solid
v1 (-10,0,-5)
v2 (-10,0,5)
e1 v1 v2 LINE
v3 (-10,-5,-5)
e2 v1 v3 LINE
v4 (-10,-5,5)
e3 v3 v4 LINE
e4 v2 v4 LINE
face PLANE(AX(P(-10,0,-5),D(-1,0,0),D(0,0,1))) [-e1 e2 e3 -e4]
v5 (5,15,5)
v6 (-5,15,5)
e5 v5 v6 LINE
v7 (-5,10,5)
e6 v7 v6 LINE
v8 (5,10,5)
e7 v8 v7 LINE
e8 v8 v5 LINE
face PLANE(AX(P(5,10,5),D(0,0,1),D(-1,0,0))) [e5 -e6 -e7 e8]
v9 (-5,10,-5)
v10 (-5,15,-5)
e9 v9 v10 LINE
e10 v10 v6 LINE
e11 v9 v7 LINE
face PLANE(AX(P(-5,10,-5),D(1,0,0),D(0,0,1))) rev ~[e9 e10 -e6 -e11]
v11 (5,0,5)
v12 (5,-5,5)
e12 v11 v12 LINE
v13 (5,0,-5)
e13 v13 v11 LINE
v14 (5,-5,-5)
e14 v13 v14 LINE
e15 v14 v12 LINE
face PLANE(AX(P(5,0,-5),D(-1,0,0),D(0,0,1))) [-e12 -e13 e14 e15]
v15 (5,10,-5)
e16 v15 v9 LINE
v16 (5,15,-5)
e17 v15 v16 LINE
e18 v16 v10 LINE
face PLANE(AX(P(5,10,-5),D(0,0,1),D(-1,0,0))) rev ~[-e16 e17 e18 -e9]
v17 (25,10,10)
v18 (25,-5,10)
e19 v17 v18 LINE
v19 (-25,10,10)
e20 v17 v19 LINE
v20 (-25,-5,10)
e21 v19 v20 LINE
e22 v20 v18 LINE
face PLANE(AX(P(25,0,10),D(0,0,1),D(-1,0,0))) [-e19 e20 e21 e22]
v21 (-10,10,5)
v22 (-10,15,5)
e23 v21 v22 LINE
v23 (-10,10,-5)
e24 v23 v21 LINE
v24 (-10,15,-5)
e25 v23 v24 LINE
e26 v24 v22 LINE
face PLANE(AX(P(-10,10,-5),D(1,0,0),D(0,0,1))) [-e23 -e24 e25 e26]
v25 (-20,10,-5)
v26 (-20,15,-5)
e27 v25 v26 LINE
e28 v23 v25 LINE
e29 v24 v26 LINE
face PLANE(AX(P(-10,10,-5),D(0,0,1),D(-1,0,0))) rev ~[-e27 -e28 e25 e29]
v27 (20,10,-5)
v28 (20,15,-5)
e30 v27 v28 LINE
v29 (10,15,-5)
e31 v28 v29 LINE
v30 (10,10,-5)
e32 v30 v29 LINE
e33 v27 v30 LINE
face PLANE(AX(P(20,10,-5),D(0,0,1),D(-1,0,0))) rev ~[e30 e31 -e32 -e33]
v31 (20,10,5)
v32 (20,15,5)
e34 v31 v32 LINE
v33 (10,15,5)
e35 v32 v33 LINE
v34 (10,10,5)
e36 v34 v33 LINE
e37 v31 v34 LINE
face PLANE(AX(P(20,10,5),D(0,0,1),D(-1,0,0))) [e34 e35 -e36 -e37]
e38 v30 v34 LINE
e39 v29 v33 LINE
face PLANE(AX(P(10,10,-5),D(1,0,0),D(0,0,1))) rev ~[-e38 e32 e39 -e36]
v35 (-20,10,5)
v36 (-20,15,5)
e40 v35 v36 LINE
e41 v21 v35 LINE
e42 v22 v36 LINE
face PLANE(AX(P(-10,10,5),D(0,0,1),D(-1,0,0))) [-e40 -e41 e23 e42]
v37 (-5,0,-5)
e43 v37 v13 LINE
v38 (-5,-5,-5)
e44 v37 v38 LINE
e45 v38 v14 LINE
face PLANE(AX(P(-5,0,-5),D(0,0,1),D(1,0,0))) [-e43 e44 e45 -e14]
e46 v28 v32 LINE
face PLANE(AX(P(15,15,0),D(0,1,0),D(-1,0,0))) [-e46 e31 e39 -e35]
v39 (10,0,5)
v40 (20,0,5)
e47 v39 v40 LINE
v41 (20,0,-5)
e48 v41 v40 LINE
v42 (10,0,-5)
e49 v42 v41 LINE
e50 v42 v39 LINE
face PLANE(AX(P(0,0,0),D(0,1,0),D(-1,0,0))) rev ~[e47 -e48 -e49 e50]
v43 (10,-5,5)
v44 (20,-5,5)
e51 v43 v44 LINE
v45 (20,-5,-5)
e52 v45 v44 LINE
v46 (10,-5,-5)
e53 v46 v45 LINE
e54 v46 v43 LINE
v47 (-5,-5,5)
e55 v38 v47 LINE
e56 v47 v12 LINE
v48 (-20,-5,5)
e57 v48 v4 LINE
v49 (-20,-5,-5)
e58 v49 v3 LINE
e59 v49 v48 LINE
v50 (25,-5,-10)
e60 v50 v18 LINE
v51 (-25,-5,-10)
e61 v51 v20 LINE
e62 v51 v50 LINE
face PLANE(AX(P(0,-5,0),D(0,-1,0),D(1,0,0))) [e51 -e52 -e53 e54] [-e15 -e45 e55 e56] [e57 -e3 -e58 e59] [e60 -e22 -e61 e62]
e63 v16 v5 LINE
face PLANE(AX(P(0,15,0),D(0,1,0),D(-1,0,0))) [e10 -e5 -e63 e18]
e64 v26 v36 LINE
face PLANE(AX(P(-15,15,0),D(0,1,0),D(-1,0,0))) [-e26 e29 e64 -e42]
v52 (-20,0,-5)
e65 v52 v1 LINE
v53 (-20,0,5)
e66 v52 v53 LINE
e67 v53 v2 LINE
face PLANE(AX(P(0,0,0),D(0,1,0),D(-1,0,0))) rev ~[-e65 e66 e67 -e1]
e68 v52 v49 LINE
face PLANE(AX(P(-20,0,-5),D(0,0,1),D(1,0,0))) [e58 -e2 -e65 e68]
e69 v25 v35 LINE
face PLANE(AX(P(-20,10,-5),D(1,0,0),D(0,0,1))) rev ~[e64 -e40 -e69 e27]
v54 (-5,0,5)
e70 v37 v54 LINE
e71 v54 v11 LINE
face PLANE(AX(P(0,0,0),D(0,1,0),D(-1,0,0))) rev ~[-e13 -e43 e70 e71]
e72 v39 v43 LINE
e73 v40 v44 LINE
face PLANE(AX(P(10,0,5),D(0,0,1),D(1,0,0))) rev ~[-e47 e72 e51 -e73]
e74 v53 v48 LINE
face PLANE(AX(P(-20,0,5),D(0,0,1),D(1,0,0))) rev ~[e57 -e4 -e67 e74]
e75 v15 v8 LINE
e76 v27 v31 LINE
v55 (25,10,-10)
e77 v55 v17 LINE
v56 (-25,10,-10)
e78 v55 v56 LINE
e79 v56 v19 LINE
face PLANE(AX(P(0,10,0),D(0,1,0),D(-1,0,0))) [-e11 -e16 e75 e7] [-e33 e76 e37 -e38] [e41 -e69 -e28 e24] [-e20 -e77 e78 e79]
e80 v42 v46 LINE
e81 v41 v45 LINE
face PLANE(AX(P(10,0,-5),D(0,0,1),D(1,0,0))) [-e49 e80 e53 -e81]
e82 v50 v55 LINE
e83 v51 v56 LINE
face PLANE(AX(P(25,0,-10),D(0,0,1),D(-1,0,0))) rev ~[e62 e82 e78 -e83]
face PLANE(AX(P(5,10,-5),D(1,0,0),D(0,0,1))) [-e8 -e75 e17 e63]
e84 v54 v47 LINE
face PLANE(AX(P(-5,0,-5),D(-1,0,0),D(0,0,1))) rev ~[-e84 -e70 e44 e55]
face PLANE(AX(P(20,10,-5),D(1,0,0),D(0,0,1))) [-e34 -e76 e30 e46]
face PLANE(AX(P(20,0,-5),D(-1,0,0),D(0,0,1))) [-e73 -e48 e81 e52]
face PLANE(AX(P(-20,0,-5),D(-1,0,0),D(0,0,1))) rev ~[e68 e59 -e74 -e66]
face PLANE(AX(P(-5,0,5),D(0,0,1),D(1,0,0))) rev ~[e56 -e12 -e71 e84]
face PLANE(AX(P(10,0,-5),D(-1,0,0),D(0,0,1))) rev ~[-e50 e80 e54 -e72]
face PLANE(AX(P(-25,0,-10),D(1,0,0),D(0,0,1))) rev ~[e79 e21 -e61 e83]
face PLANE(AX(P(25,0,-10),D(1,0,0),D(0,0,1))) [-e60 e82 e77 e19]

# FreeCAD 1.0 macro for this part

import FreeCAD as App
import Part
import Sketcher

V = App.Vector
Q = App.Units.Quantity


def add_polygon(sketch, points):
    """Adds a closed chain of lines whose ends are joined by coincident constraints."""
    first, n = sketch.GeometryCount, len(points)
    for a, b in zip(points, points[1:] + points[:1]):
        sketch.addGeometry(Part.LineSegment(App.Vector(*a, 0), App.Vector(*b, 0)), False)
    for i in range(n):
        sketch.addConstraint(Sketcher.Constraint("Coincident", first + i, 2, first + (i + 1) % n, 1))

doc = App.newDocument("Part")
body = doc.addObject("PartDesign::Body", "Body")

sketch1 = body.newObject("Sketcher::SketchObject", "Sketch")
sketch1.AttachmentSupport = (doc.getObject("XZ_Plane"), [""])
sketch1.MapMode = "FlatFace"
add_polygon(sketch1, [(-25, 10), (-25, -10), (25, -10), (25, 10)])
add_polygon(sketch1, [(-10, -5), (-20, -5), (-20, 5), (-10, 5)])
add_polygon(sketch1, [(5, -5), (-5, -5), (-5, 5), (5, 5)])
add_polygon(sketch1, [(20, -5), (10, -5), (10, 5), (20, 5)])
sketch1.addConstraint([
    Sketcher.Constraint("Vertical", 0),
    Sketcher.Constraint("Horizontal", 1),
    Sketcher.Constraint("Vertical", 2),
    Sketcher.Constraint("Horizontal", 3),
    Sketcher.Constraint("Horizontal", 4),
    Sketcher.Constraint("Vertical", 5),
    Sketcher.Constraint("Horizontal", 6),
    Sketcher.Constraint("Vertical", 7),
    Sketcher.Constraint("Horizontal", 8),
    Sketcher.Constraint("Vertical", 9),
    Sketcher.Constraint("Horizontal", 10),
    Sketcher.Constraint("Vertical", 11),
    Sketcher.Constraint("Horizontal", 12),
    Sketcher.Constraint("Vertical", 13),
    Sketcher.Constraint("Horizontal", 14),
    Sketcher.Constraint("Vertical", 15),
    Sketcher.Constraint("Symmetric", 0, 2, 2, 2, -1, 1),
    Sketcher.Constraint("Symmetric", 8, 2, 10, 2, -1, 1),
    Sketcher.Constraint("Symmetric", 6, 2, 12, 2, -1, 1),
    Sketcher.Constraint("Symmetric", 4, 2, 14, 2, -1, 1),
    Sketcher.Constraint("Horizontal", 7, 2, 8, 2),
    Sketcher.Constraint("Horizontal", 6, 2, 9, 2),
    Sketcher.Constraint("Equal", 6, 8),
    Sketcher.Constraint("Equal", 14, 5),
    Sketcher.Constraint("DistanceX", 1, 1, 1, 2, Q("50 mm")),
    Sketcher.Constraint("DistanceX", 4, 2, 4, 1, Q("10 mm")),
    Sketcher.Constraint("DistanceY", 0, 2, 0, 1, Q("20 mm")),
    Sketcher.Constraint("DistanceX", 4, 2, -1, 1, Q("20 mm")),
])
pad1 = body.newObject("PartDesign::Pad", "Pad")
pad1.Profile = sketch1
pad1.Length = 5

sketch2 = body.newObject("Sketcher::SketchObject", "Sketch001")
sketch2.AttachmentSupport = (doc.getObject("XZ_Plane"), [""])
sketch2.MapMode = "FlatFace"
add_polygon(sketch2, [(25, 10), (25, -10), (-25, -10), (-25, 10)])
sketch2.addConstraint([
    Sketcher.Constraint("Vertical", 0),
    Sketcher.Constraint("Horizontal", 1),
    Sketcher.Constraint("Vertical", 2),
    Sketcher.Constraint("Horizontal", 3),
    Sketcher.Constraint("Symmetric", 0, 2, 2, 2, -1, 1),
    Sketcher.Constraint("DistanceX", 1, 2, 1, 1, Q("50 mm")),
    Sketcher.Constraint("DistanceY", 0, 2, 0, 1, Q("20 mm")),
])
pad2 = body.newObject("PartDesign::Pad", "Pad001")
pad2.Profile = sketch2
pad2.Length = 10
pad2.Reversed = True

sketch3 = body.newObject("Sketcher::SketchObject", "Sketch002")
sketch3.AttachmentSupport = (doc.getObject("XZ_Plane"), [""])
sketch3.MapMode = "FlatFace"
sketch3.AttachmentOffset = App.Placement(V(0, 0, -10), App.Rotation())
add_polygon(sketch3, [(5, 5), (5, -5), (-5, -5), (-5, 5)])
add_polygon(sketch3, [(20, 5), (20, -5), (10, -5), (10, 5)])
add_polygon(sketch3, [(-10, 5), (-10, -5), (-20, -5), (-20, 5)])
sketch3.addConstraint([
    Sketcher.Constraint("Vertical", 0),
    Sketcher.Constraint("Horizontal", 1),
    Sketcher.Constraint("Vertical", 2),
    Sketcher.Constraint("Horizontal", 3),
    Sketcher.Constraint("Vertical", 4),
    Sketcher.Constraint("Horizontal", 5),
    Sketcher.Constraint("Vertical", 6),
    Sketcher.Constraint("Horizontal", 7),
    Sketcher.Constraint("Vertical", 8),
    Sketcher.Constraint("Horizontal", 9),
    Sketcher.Constraint("Vertical", 10),
    Sketcher.Constraint("Horizontal", 11),
    Sketcher.Constraint("Symmetric", 0, 2, 2, 2, -1, 1),
    Sketcher.Constraint("Symmetric", 6, 2, 8, 2, -1, 1),
    Sketcher.Constraint("Symmetric", 4, 2, 10, 2, -1, 1),
    Sketcher.Constraint("Horizontal", 1, 2, 4, 2),
    Sketcher.Constraint("Horizontal", 3, 2, 6, 2),
    Sketcher.Constraint("Equal", 3, 5),
    Sketcher.Constraint("Equal", 11, 0),
    Sketcher.Constraint("DistanceX", 1, 2, 1, 1, Q("10 mm")),
    Sketcher.Constraint("DistanceX", -1, 1, 4, 2, Q("20 mm")),
])
pad3 = body.newObject("PartDesign::Pad", "Pad002")
pad3.Profile = sketch3
pad3.Length = 5
pad3.Reversed = True

doc.recompute()
